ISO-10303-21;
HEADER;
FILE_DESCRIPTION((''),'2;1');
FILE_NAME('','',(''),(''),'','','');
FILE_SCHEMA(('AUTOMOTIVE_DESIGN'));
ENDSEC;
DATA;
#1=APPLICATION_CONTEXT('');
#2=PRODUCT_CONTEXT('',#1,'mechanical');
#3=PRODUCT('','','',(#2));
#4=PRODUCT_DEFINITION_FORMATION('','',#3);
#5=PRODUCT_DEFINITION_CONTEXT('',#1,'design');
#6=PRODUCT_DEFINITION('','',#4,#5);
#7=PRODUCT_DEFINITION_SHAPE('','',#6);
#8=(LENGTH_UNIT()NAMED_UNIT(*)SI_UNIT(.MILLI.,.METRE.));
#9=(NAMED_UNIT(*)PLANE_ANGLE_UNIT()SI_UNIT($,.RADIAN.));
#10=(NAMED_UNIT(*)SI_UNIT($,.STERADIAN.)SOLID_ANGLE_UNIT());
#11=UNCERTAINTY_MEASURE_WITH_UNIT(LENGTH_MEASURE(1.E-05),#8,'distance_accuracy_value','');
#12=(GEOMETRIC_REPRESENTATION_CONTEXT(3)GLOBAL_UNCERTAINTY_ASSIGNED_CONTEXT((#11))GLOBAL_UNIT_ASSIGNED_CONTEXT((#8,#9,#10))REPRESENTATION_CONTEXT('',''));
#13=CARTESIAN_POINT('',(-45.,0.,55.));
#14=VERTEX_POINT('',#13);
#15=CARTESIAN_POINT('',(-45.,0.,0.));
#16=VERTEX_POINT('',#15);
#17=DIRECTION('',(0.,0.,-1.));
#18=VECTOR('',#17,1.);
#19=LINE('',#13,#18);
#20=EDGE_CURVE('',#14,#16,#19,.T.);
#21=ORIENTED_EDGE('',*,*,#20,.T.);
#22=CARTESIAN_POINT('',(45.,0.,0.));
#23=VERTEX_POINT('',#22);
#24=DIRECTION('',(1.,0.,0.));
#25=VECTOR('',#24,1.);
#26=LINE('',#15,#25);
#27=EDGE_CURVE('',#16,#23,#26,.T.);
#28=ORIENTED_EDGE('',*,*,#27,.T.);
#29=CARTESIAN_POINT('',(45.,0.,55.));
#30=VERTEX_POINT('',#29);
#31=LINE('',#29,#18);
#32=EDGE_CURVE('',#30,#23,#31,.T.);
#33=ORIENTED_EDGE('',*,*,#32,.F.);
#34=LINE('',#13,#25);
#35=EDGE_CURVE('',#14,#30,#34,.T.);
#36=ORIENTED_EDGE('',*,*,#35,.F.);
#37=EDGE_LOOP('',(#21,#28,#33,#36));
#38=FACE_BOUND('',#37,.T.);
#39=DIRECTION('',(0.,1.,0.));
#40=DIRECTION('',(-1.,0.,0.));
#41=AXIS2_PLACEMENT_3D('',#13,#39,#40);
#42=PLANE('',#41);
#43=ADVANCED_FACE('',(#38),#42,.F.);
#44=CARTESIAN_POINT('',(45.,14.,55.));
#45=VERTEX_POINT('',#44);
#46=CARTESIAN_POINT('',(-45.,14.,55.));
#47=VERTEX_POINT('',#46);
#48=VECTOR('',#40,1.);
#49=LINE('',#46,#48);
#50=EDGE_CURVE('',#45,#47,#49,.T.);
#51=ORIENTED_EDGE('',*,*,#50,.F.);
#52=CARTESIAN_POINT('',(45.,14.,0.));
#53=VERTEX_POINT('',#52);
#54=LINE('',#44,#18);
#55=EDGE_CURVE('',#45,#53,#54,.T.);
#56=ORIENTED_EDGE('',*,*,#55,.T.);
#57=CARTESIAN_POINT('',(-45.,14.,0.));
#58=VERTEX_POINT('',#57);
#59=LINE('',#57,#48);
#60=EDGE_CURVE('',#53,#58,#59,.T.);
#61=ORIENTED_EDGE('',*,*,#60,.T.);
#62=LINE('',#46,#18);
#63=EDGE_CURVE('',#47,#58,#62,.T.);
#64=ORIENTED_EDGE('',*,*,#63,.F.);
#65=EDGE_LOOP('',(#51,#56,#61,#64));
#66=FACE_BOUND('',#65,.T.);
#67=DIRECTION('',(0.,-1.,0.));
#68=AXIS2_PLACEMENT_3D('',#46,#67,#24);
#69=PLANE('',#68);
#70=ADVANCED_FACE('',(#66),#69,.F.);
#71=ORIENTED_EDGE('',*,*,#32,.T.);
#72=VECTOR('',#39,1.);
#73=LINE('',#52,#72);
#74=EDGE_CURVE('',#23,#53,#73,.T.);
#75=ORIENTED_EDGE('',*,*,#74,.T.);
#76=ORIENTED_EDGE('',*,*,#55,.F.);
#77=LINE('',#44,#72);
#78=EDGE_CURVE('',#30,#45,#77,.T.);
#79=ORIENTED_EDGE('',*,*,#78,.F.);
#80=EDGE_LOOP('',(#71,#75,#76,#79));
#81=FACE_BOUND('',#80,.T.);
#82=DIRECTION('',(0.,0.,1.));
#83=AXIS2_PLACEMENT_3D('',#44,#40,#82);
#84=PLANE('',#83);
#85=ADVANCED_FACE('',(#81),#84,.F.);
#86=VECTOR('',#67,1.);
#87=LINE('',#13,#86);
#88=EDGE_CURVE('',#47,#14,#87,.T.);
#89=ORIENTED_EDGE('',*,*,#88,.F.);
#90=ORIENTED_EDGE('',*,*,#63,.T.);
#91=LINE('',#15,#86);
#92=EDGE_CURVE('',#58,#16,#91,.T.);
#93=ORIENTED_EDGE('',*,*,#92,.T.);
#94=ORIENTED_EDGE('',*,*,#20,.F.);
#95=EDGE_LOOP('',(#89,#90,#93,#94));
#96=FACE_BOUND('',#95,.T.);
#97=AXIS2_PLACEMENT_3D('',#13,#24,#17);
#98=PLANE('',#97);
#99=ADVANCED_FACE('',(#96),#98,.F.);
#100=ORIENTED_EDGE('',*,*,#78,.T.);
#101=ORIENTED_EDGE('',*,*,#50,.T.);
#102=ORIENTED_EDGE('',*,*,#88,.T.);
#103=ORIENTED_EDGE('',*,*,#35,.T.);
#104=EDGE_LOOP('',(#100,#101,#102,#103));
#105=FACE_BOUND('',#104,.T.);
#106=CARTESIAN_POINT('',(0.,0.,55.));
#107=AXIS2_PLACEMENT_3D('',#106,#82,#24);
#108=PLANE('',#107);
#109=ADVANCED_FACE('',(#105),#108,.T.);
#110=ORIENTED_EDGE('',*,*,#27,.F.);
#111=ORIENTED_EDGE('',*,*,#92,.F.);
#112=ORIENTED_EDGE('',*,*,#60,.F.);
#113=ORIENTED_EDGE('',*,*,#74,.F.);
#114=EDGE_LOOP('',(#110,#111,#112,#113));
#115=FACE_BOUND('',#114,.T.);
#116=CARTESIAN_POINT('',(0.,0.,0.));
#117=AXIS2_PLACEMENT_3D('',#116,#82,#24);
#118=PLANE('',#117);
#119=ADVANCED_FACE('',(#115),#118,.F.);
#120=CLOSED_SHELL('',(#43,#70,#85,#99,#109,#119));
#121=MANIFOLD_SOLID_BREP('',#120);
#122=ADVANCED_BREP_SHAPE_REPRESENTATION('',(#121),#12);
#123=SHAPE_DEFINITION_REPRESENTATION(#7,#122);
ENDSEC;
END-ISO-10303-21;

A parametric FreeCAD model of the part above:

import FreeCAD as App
import Part
import Sketcher
from FreeCAD import Vector
Q = App.Units.Quantity

doc = App.newDocument("Part")
body = doc.addObject("PartDesign::Body", "Body")

# Sketch on XY plane
sketch1 = body.newObject("Sketcher::SketchObject", "Sketch")
sketch1.AttachmentSupport = (doc.getObject("XY_Plane"), [""])
sketch1.MapMode = "FlatFace"
sketch1.addGeometry([
    Part.LineSegment(Vector(-45, 14, 0), Vector(-45, 0, 0)),
    Part.LineSegment(Vector(-45, 0, 0), Vector(45, 0, 0)),
    Part.LineSegment(Vector(45, 0, 0), Vector(45, 14, 0)),
    Part.LineSegment(Vector(45, 14, 0), Vector(-45, 14, 0)),
], False)
sketch1.addConstraint([
    Sketcher.Constraint("Coincident", 0, 2, 1, 1),
    Sketcher.Constraint("Coincident", 1, 2, 2, 1),
    Sketcher.Constraint("Coincident", 2, 2, 3, 1),
    Sketcher.Constraint("Coincident", 3, 2, 0, 1),
    Sketcher.Constraint("Vertical", 0),
    Sketcher.Constraint("Horizontal", 1),
    Sketcher.Constraint("Vertical", 2),
    Sketcher.Constraint("Horizontal", 3),
    Sketcher.Constraint("Symmetric", 0, 2, 1, 2, -1, 1),
    Sketcher.Constraint("DistanceX", 1, 1, 1, 2, Q("90 mm")),
    Sketcher.Constraint("DistanceY", 0, 2, 0, 1, Q("14 mm")),
])
pad1 = body.newObject("PartDesign::Pad", "Pad")
pad1.Profile = sketch1
pad1.Length = 55

doc.recompute()
